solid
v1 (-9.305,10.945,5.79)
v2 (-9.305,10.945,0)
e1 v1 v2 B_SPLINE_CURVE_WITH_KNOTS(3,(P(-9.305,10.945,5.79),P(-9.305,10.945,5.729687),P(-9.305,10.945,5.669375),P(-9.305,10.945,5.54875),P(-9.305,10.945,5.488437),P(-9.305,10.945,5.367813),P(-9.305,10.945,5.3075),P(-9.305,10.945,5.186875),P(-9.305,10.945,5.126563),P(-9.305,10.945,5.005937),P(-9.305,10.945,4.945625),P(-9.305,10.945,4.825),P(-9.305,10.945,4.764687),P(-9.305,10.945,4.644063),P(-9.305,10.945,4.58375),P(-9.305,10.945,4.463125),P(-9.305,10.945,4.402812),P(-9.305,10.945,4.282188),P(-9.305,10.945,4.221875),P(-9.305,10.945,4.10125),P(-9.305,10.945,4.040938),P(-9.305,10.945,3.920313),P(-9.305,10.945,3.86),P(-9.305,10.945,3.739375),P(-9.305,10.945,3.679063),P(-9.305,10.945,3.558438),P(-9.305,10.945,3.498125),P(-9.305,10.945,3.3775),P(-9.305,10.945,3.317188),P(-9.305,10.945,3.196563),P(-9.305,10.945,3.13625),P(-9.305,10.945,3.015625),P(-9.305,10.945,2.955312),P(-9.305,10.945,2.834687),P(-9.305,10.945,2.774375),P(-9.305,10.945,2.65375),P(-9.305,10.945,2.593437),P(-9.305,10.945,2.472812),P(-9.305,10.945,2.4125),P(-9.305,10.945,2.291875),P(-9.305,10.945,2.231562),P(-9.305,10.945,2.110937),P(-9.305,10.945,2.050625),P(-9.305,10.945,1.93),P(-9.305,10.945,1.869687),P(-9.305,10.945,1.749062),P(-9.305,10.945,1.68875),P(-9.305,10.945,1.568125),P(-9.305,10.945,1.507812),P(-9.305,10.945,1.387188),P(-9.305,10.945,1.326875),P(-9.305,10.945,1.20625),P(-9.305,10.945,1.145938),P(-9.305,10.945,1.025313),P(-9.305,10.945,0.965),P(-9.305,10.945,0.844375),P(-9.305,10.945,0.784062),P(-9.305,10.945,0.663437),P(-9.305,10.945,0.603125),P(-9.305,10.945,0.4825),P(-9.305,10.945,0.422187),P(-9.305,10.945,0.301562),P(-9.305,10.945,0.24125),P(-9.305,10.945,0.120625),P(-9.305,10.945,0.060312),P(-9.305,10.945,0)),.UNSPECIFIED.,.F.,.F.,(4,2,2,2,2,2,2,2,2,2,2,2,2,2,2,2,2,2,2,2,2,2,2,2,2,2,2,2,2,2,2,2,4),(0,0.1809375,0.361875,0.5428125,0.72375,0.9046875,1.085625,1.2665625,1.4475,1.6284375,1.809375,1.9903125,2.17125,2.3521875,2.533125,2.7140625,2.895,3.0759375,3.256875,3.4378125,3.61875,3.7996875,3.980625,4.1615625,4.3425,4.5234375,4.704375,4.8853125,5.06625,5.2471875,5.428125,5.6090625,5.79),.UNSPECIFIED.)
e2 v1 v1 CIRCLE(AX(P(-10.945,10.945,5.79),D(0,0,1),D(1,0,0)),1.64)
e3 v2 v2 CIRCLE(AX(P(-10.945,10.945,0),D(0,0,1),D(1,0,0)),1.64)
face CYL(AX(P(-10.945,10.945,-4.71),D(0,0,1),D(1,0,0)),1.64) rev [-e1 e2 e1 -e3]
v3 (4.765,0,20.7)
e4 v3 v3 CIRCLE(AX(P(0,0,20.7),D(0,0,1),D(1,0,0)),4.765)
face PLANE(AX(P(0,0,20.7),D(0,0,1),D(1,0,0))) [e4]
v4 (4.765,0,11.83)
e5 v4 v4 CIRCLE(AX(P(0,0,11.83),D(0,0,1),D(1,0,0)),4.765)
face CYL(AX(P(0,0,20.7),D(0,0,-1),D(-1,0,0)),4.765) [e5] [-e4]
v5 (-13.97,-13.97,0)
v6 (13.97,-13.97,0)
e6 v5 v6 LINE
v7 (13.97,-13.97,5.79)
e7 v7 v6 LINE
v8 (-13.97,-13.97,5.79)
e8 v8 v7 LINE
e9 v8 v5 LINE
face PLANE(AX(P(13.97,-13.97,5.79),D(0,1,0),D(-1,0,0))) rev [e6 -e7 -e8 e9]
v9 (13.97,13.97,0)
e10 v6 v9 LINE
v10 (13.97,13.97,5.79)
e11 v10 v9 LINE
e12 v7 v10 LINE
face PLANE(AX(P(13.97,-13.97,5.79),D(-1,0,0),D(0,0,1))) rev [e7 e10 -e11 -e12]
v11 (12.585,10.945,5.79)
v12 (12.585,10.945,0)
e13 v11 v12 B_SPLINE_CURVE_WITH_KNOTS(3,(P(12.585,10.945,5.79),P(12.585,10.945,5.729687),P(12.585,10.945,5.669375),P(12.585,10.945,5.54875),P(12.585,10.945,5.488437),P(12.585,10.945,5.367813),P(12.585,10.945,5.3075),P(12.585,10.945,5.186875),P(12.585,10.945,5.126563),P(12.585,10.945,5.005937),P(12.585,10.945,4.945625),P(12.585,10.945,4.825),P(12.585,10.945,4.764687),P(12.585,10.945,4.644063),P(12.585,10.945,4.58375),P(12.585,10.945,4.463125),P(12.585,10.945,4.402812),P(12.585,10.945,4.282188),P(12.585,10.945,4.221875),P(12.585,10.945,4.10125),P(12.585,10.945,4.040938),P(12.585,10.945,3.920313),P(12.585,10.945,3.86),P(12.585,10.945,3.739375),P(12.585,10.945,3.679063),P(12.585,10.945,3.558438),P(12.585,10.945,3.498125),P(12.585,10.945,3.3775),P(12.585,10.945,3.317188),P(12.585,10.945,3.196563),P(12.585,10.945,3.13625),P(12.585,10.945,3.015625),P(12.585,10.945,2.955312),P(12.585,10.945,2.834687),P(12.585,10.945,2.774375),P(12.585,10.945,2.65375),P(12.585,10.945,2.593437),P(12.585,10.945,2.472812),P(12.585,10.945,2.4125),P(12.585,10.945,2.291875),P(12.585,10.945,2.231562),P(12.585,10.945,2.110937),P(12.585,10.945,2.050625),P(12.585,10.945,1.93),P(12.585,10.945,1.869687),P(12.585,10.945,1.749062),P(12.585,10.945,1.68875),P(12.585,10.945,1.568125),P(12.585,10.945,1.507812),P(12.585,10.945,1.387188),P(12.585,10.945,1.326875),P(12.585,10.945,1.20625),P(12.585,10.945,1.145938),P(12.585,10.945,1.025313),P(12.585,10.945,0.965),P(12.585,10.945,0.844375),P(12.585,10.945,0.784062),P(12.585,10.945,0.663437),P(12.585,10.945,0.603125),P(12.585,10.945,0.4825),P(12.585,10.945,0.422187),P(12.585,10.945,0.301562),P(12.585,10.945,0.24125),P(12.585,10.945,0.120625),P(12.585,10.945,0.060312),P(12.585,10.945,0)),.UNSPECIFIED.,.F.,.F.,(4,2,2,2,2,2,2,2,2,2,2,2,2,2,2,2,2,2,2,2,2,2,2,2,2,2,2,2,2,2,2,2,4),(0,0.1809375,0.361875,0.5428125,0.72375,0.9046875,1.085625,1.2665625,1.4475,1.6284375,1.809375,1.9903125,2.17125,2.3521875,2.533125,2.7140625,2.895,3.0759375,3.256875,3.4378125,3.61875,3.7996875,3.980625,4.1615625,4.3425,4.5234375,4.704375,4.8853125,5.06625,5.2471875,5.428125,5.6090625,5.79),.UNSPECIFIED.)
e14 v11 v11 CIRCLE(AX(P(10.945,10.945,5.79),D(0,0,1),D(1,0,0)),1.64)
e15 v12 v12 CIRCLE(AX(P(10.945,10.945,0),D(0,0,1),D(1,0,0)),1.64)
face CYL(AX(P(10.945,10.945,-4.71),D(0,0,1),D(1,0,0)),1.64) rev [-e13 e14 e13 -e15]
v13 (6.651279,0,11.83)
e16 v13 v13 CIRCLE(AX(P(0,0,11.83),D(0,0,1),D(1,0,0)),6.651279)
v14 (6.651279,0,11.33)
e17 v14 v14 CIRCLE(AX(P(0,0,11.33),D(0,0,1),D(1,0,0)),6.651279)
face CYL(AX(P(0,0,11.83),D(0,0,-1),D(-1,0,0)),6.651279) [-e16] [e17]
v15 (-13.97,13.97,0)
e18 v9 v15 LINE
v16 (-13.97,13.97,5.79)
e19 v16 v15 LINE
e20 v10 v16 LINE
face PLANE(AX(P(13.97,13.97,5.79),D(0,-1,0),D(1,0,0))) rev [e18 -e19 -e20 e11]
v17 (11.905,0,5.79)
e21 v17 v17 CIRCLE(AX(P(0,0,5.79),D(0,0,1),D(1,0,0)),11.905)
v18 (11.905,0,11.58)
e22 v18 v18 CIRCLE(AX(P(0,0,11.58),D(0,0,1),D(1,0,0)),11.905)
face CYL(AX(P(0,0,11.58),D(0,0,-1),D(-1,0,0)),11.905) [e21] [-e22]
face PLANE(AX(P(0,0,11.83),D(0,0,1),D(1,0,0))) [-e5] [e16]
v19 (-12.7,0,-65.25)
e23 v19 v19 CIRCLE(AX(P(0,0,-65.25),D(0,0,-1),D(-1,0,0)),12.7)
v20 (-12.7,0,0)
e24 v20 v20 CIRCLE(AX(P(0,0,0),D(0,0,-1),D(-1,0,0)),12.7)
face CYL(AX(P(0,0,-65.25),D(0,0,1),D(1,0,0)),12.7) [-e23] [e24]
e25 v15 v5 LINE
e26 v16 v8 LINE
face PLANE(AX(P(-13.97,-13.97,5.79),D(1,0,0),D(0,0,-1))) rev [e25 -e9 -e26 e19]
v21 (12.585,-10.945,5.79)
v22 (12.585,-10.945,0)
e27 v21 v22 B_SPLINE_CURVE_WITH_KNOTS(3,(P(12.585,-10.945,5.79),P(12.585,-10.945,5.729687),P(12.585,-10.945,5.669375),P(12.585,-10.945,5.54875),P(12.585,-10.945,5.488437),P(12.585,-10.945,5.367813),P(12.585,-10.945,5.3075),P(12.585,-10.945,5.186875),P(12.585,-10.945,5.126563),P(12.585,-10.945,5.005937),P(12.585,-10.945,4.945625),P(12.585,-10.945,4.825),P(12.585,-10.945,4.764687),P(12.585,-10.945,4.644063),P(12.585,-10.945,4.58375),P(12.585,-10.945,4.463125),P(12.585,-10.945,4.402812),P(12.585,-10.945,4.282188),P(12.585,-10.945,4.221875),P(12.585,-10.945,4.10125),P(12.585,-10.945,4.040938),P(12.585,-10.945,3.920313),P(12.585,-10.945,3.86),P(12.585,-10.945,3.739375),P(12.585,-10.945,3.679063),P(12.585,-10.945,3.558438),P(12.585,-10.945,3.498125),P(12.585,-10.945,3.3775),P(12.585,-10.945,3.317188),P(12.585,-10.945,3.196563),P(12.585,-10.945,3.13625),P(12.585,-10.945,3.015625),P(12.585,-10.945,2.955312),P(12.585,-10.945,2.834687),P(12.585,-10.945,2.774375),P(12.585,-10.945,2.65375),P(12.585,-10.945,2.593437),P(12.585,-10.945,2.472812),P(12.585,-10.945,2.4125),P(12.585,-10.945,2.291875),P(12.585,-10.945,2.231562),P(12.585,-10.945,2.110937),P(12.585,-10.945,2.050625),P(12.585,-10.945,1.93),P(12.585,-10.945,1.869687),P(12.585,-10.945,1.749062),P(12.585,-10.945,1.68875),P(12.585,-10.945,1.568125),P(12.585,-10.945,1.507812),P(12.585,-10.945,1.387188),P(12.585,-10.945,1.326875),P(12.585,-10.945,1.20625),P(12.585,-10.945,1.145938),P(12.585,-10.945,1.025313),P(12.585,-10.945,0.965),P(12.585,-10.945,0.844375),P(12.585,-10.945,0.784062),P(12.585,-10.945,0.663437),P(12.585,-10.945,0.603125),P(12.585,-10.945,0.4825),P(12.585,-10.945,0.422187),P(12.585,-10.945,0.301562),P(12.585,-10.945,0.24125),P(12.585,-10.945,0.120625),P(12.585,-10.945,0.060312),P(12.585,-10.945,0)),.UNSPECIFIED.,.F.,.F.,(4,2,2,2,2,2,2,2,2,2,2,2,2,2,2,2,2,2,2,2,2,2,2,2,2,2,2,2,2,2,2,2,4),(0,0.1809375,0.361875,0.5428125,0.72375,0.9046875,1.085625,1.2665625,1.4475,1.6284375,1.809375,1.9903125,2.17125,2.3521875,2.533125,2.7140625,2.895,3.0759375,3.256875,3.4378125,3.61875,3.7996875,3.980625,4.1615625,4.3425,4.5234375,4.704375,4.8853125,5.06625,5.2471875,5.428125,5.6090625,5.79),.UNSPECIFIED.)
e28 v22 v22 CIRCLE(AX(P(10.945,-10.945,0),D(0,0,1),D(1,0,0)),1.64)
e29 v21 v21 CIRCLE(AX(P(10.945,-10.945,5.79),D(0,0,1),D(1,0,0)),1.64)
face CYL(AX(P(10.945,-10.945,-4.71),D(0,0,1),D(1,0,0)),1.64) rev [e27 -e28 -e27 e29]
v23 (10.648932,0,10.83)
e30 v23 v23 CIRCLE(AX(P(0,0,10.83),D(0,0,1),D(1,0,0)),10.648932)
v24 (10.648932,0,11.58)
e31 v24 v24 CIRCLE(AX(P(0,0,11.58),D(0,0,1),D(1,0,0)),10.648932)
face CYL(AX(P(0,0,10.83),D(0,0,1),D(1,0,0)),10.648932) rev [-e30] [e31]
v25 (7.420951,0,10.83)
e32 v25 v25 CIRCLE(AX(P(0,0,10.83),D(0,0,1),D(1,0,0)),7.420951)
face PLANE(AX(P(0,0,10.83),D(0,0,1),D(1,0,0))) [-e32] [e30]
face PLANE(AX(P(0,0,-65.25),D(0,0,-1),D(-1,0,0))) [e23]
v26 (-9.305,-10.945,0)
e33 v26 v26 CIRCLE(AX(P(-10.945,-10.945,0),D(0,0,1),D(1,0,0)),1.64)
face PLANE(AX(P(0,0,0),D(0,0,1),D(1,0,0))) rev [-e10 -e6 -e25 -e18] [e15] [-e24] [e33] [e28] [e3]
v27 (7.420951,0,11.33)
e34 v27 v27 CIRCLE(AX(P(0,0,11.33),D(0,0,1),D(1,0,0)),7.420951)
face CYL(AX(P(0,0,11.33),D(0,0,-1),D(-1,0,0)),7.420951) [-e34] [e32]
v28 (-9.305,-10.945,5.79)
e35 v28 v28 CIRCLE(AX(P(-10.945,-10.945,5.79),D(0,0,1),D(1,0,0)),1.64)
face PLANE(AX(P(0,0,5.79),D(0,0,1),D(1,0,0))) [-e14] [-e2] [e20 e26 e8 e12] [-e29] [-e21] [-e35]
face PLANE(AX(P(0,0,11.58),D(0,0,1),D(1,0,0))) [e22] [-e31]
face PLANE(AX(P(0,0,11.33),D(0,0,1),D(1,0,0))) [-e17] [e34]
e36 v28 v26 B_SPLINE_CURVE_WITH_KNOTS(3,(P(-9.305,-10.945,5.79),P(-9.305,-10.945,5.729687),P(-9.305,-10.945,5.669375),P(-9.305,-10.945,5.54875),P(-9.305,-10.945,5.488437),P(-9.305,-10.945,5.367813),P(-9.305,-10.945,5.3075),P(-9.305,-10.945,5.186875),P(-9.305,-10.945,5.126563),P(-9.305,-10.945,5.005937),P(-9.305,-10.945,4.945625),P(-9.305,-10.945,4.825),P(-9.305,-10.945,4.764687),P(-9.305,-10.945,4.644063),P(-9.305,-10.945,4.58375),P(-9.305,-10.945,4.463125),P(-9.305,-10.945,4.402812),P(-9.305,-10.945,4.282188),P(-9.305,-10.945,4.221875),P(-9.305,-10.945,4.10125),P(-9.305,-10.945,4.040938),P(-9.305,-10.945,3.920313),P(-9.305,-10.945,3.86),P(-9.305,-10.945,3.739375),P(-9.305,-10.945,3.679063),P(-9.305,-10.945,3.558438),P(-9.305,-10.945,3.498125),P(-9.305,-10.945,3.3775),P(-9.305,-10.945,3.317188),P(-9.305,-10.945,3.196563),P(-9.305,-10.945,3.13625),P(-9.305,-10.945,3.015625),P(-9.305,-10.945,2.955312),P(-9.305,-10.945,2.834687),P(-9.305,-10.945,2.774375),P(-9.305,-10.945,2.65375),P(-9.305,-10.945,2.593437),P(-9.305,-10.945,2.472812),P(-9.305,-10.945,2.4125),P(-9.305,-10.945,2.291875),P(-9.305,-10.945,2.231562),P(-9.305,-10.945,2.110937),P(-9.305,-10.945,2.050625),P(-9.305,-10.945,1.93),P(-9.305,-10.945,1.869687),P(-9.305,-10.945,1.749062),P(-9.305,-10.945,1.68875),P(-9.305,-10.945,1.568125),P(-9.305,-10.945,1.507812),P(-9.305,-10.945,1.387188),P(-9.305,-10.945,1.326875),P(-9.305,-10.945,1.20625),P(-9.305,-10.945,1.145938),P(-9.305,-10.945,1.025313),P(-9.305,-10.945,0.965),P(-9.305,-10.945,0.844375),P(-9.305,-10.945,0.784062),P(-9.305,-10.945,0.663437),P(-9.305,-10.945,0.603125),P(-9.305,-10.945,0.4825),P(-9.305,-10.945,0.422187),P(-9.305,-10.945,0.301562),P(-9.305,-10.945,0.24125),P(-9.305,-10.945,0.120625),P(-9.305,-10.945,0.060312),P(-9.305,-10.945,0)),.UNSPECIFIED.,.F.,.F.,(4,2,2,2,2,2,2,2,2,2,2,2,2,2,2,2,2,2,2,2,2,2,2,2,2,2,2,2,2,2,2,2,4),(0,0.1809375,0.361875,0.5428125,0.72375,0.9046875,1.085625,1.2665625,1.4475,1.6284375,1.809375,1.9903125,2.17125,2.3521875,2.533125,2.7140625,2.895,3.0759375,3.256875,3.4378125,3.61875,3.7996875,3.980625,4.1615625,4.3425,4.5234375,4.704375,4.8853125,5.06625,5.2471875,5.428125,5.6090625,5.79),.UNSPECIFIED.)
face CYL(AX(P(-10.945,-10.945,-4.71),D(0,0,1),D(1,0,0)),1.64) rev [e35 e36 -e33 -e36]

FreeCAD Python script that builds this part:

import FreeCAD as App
import Part
import Sketcher

V = App.Vector


def add_polygon(sketch, points):
    """Adds a closed chain of lines whose ends are joined by coincident constraints."""
    first, n = sketch.GeometryCount, len(points)
    for a, b in zip(points, points[1:] + points[:1]):
        sketch.addGeometry(Part.LineSegment(App.Vector(*a, 0), App.Vector(*b, 0)), False)
    for i in range(n):
        sketch.addConstraint(Sketcher.Constraint("Coincident", first + i, 2, first + (i + 1) % n, 1))

doc = App.newDocument("Part")
body = doc.addObject("PartDesign::Body", "Body")

sketch1 = body.newObject("Sketcher::SketchObject", "Sketch")
sketch1.AttachmentSupport = (doc.getObject("XY_Plane"), [""])
sketch1.MapMode = "FlatFace"
add_polygon(sketch1, [(-14, 14), (-14, -14), (14, -14), (14, 14)])
sketch1.addConstraint([
    Sketcher.Constraint("Vertical", 0),
    Sketcher.Constraint("Horizontal", 1),
    Sketcher.Constraint("Vertical", 2),
    Sketcher.Constraint("Horizontal", 3),
    Sketcher.Constraint("Symmetric", 0, 2, 2, 2, -1, 1),
    Sketcher.Constraint("Equal", 3, 0),
    Sketcher.Constraint("DistanceX", 1, 1, 1, 2, 27.94),
])
pad1 = body.newObject("PartDesign::Pad", "Pad")
pad1.Profile = sketch1
pad1.Length = 5.79

sketch2 = body.newObject("Sketcher::SketchObject", "Sketch001")
sketch2.AttachmentSupport = (doc.getObject("XY_Plane"), [""])
sketch2.MapMode = "FlatFace"
sketch2.AttachmentOffset = App.Placement(V(0, 0, 5.79), App.Rotation())
sketch2.addGeometry(Part.Circle(V(0, 0, 0), V(0, 0, 1), 12), False)
sketch2.addConstraint([
    Sketcher.Constraint("Coincident", 0, 3, -1, 1),
    Sketcher.Constraint("Diameter", 0, 23.81),
])
pad2 = body.newObject("PartDesign::Pad", "Pad001")
pad2.Profile = sketch2
pad2.Length = 5.79

sketch3 = body.newObject("Sketcher::SketchObject", "Sketch002")
sketch3.AttachmentSupport = (doc.getObject("XY_Plane"), [""])
sketch3.MapMode = "FlatFace"
sketch3.AttachmentOffset = App.Placement(V(0, 0, 11.58), App.Rotation())
sketch3.addGeometry(Part.Circle(V(0, 0, 0), V(0, 0, 1), 4.8), False)
sketch3.addConstraint([
    Sketcher.Constraint("Coincident", 0, 3, -1, 1),
    Sketcher.Constraint("Diameter", 0, 9.53),
])
pad3 = body.newObject("PartDesign::Pad", "Pad002")
pad3.Profile = sketch3
pad3.Length = 9.12

sketch4 = body.newObject("Sketcher::SketchObject", "Sketch003")
sketch4.AttachmentSupport = (doc.getObject("XY_Plane"), [""])
sketch4.MapMode = "FlatFace"
sketch4.addGeometry(Part.Circle(V(0, 0, 0), V(0, 0, 1), 13), False)
sketch4.addConstraint([
    Sketcher.Constraint("Coincident", 0, 3, -1, 1),
    Sketcher.Constraint("Diameter", 0, 25.4),
])
pad4 = body.newObject("PartDesign::Pad", "Pad003")
pad4.Profile = sketch4
pad4.Length = 65.25
pad4.Reversed = True

sketch5 = body.newObject("Sketcher::SketchObject", "Sketch004")
sketch5.AttachmentSupport = (doc.getObject("XY_Plane"), [""])
sketch5.MapMode = "FlatFace"
sketch5.AttachmentOffset = App.Placement(V(0, 0, 10.83), App.Rotation())
sketch5.addGeometry([
    Part.Circle(V(0, 0, 0), V(0, 0, 1), 10.6),
    Part.Circle(V(0, 0, 0), V(0, 0, 1), 4.8),
], False)
sketch5.addConstraint([
    Sketcher.Constraint("Coincident", 0, 3, -1, 1),
    Sketcher.Constraint("Coincident", 1, 3, -1, 1),
    Sketcher.Constraint("Diameter", 1, 9.53),
    Sketcher.Constraint("Diameter", 0, 21.297863),
])
pocket1 = body.newObject("PartDesign::Pocket", "Pocket")
pocket1.Profile = sketch5
pocket1.Length = 0.75
pocket1.Reversed = True

sketch6 = body.newObject("Sketcher::SketchObject", "Sketch005")
sketch6.AttachmentSupport = (doc.getObject("XY_Plane"), [""])
sketch6.MapMode = "FlatFace"
sketch6.AttachmentOffset = App.Placement(V(0, 0, 10.83), App.Rotation())
sketch6.addGeometry(Part.Circle(V(0, 0, 0), V(0, 0, 1), 7), False)
sketch6.addConstraint([
    Sketcher.Constraint("Coincident", 0, 3, -1, 1),
    Sketcher.Constraint("Diameter", 0, 14.841902),
])
pad5 = body.newObject("PartDesign::Pad", "Pad004")
pad5.Profile = sketch6
pad5.Length = 0.5

sketch7 = body.newObject("Sketcher::SketchObject", "Sketch006")
sketch7.AttachmentSupport = (doc.getObject("XY_Plane"), [""])
sketch7.MapMode = "FlatFace"
sketch7.AttachmentOffset = App.Placement(V(0, 0, 11.33), App.Rotation())
sketch7.addGeometry(Part.Circle(V(0, 0, 0), V(0, 0, 1), 7), False)
sketch7.addConstraint([
    Sketcher.Constraint("Coincident", 0, 3, -1, 1),
    Sketcher.Constraint("Diameter", 0, 13.302558),
])
pad6 = body.newObject("PartDesign::Pad", "Pad005")
pad6.Profile = sketch7
pad6.Length = 0.5

sketch8 = body.newObject("Sketcher::SketchObject", "Sketch007")
sketch8.AttachmentSupport = (doc.getObject("XY_Plane"), [""])
sketch8.MapMode = "FlatFace"
sketch8.AttachmentOffset = App.Placement(V(0, 0, 5.79), App.Rotation())
sketch8.addGeometry([
    Part.Circle(V(-10.9, 10.9, 0), V(0, 0, 1), 1.6),
    Part.Circle(V(10.9, 10.9, 0), V(0, 0, 1), 1.6),
    Part.Circle(V(10.9, -10.9, 0), V(0, 0, 1), 1.6),
    Part.Circle(V(-10.9, -10.9, 0), V(0, 0, 1), 1.6),
], False)
sketch8.addConstraint([
    Sketcher.Constraint("Equal", 0, 1),
    Sketcher.Constraint("Equal", 1, 2),
    Sketcher.Constraint("Equal", 2, 3),
    Sketcher.Constraint("Symmetric", 0, 3, 2, 3, -1, 1),
    Sketcher.Constraint("Symmetric", 1, 3, 3, 3, -1, 1),
    Sketcher.Constraint("Symmetric", 0, 3, 1, 3, -2),
    Sketcher.Constraint("Diameter", 0, 3.28),
    Sketcher.Constraint("DistanceX", 0, 3, 1, 3, 21.89),
    Sketcher.Constraint("DistanceY", 2, 3, 1, 3, 21.89),
])
pocket2 = body.newObject("PartDesign::Pocket", "Pocket001")
pocket2.Profile = sketch8
pocket2.Length = 10.5

doc.recompute()
